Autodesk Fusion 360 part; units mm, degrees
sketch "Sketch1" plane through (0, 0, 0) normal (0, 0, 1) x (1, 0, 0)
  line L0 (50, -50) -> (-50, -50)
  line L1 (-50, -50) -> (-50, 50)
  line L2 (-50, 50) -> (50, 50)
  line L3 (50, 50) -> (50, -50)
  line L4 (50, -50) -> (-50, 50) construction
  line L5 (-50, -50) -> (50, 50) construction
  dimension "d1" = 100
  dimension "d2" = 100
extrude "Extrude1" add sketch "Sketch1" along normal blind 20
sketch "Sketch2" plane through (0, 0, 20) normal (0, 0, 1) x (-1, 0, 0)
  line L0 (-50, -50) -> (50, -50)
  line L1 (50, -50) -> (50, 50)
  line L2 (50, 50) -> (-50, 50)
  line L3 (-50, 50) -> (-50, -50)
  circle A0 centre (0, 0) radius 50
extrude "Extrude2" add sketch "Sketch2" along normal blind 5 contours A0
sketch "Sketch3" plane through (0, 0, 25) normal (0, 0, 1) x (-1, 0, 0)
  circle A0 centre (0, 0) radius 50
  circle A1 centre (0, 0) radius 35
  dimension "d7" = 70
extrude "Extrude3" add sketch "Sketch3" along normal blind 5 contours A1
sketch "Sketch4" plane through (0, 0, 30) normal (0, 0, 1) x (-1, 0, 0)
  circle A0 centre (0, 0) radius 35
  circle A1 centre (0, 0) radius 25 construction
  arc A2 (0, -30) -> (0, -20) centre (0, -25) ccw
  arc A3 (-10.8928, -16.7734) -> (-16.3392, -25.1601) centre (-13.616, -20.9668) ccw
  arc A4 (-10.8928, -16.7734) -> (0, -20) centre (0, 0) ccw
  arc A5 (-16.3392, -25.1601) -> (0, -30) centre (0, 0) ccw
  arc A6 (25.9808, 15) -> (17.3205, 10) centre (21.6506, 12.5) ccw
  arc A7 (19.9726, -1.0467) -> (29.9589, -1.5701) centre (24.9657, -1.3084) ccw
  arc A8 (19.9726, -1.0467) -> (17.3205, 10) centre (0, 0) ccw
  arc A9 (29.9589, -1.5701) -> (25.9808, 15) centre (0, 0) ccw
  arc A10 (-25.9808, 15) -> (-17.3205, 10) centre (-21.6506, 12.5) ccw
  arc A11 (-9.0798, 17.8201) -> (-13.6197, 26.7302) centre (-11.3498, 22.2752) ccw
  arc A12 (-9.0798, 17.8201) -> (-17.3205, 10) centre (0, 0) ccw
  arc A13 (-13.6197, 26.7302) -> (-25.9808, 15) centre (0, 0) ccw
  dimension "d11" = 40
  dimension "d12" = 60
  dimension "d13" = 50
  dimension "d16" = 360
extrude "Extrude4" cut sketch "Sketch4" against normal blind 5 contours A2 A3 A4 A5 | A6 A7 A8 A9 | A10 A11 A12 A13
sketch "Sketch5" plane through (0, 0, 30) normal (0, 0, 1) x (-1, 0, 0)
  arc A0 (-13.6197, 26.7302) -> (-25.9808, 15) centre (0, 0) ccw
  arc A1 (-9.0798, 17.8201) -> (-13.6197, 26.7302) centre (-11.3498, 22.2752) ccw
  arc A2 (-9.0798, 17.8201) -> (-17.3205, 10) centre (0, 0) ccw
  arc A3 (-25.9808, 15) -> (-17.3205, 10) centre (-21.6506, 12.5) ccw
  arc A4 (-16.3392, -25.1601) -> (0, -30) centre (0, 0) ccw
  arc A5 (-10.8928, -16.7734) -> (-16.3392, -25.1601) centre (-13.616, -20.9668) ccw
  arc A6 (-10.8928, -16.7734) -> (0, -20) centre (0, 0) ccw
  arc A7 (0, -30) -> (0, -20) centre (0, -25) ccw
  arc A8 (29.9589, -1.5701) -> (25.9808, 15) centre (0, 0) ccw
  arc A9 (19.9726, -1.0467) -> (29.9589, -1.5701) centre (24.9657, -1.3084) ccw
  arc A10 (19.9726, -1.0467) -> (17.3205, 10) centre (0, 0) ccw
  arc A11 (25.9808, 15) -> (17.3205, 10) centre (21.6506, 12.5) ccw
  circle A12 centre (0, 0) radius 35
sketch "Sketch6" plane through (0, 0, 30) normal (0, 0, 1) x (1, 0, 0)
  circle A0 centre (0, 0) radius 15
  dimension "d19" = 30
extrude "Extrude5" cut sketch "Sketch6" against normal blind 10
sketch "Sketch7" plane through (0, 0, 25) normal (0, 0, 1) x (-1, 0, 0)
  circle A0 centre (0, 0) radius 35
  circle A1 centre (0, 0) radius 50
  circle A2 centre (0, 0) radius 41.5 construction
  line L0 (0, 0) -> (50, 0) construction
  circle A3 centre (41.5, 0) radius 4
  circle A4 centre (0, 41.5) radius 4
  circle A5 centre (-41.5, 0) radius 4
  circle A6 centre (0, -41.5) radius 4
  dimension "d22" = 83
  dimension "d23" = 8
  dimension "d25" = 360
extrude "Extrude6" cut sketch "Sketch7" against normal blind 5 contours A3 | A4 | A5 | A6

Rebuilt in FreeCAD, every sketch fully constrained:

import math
import FreeCAD as App
import Part
import Sketcher

V = App.Vector
Q = App.Units.Quantity

doc = App.newDocument("Part")
body = doc.addObject("PartDesign::Body", "Body")

# Sketch on XY plane
sketch1 = doc.addObject("Sketcher::SketchObject", "Sketch")
body.addObject(sketch1)
sketch1.AttachmentSupport = (doc.XY_Plane, [""])
sketch1.MapMode = "FlatFace"
sketch1.addGeometry(Part.LineSegment(V(-50, -50, 0), V(50, -50, 0)), False)
sketch1.addGeometry(Part.LineSegment(V(50, -50, 0), V(50, 50, 0)), False)
sketch1.addGeometry(Part.LineSegment(V(50, 50, 0), V(-50, 50, 0)), False)
sketch1.addGeometry(Part.LineSegment(V(-50, 50, 0), V(-50, -50, 0)), False)
sketch1.addConstraint(Sketcher.Constraint("Coincident", 0, 2, 1, 1))
sketch1.addConstraint(Sketcher.Constraint("Coincident", 1, 2, 2, 1))
sketch1.addConstraint(Sketcher.Constraint("Coincident", 2, 2, 3, 1))
sketch1.addConstraint(Sketcher.Constraint("Coincident", 3, 2, 0, 1))
sketch1.addConstraint(Sketcher.Constraint("Horizontal", 0))
sketch1.addConstraint(Sketcher.Constraint("Vertical", 1))
sketch1.addConstraint(Sketcher.Constraint("Horizontal", 2))
sketch1.addConstraint(Sketcher.Constraint("Vertical", 3))
sketch1.addConstraint(Sketcher.Constraint("Symmetric", 0, 2, 2, 2, -1, 1))
sketch1.addConstraint(Sketcher.Constraint("Equal", 2, 1))
sketch1.addConstraint(Sketcher.Constraint("DistanceX", 0, 1, 0, 2, Q("100 mm")))
pad1 = doc.addObject("PartDesign::Pad", "Pad")
body.addObject(pad1)
pad1.Profile = sketch1
pad1.Length = 20

# Sketch on XY plane
sketch2 = doc.addObject("Sketcher::SketchObject", "Sketch001")
body.addObject(sketch2)
sketch2.AttachmentSupport = (doc.XY_Plane, [""])
sketch2.MapMode = "FlatFace"
sketch2.AttachmentOffset = App.Placement(V(0, 0, 20), App.Rotation())
sketch2.addGeometry(Part.Circle(V(0, 0, 0), V(0, 0, 1), 50), False)
sketch2.addConstraint(Sketcher.Constraint("Coincident", 0, 3, -1, 1))
sketch2.addConstraint(Sketcher.Constraint("Diameter", 0, Q("100 mm")))
pad2 = doc.addObject("PartDesign::Pad", "Pad001")
body.addObject(pad2)
pad2.Profile = sketch2
pad2.Length = 5

# Sketch on XY plane
sketch3 = doc.addObject("Sketcher::SketchObject", "Sketch002")
body.addObject(sketch3)
sketch3.AttachmentSupport = (doc.XY_Plane, [""])
sketch3.MapMode = "FlatFace"
sketch3.AttachmentOffset = App.Placement(V(0, 0, 25), App.Rotation())
sketch3.addGeometry(Part.Circle(V(0, 0, 0), V(0, 0, 1), 35), False)
sketch3.addConstraint(Sketcher.Constraint("Coincident", 0, 3, -1, 1))
sketch3.addConstraint(Sketcher.Constraint("Diameter", 0, Q("70 mm")))
pad3 = doc.addObject("PartDesign::Pad", "Pad002")
body.addObject(pad3)
pad3.Profile = sketch3
pad3.Length = 5

# Sketch on XY plane
sketch4 = doc.addObject("Sketcher::SketchObject", "Sketch003")
body.addObject(sketch4)
sketch4.AttachmentSupport = (doc.XY_Plane, [""])
sketch4.MapMode = "FlatFace"
sketch4.AttachmentOffset = App.Placement(V(0, 0, 30), App.Rotation())
sketch4.addGeometry(Part.ArcOfCircle(Part.Circle(V(0, 0, 0), V(0, 0, 1), 29.999997), math.radians(56.999936), math.radians(90)), False)
sketch4.addGeometry(Part.ArcOfCircle(Part.Circle(V(0, 25, 0), V(0, 0, 1), 5), math.radians(90), math.radians(270)), False)
sketch4.addGeometry(Part.ArcOfCircle(Part.Circle(V(0, 0, 0), V(0, 0, 1), 20.000001), math.radians(56.999936), math.radians(90)), False)
sketch4.addGeometry(Part.ArcOfCircle(Part.Circle(V(13.616, 20.9668, 0), V(0, 0, 1), 5.000042), math.radians(-122.999752), math.radians(56.999624)), False)
sketch4.addGeometry(Part.ArcOfCircle(Part.Circle(V(0, 0, 0), V(0, 0, 1), 30.000015), math.radians(176.999961), math.radians(209.999964)), False)
sketch4.addGeometry(Part.ArcOfCircle(Part.Circle(V(-21.6506, -12.5, 0), V(0, 0, 1), 5.000063), math.radians(-150.000418), math.radians(30.000155)), False)
sketch4.addGeometry(Part.ArcOfCircle(Part.Circle(V(0, 0, 0), V(0, 0, 1), 19.999968), math.radians(177.000056), math.radians(210.000012)), False)
sketch4.addGeometry(Part.ArcOfCircle(Part.Circle(V(-24.9657, 1.3084, 0), V(0, 0, 1), 4.999953), math.radians(-3.00026), math.radians(176.9998)), False)
sketch4.addGeometry(Part.ArcOfCircle(Part.Circle(V(0, 0, 0), V(0, 0, 1), 30.000015), math.radians(-63.000029), math.radians(-29.999964)), False)
sketch4.addGeometry(Part.ArcOfCircle(Part.Circle(V(21.6506, -12.5, 0), V(0, 0, 1), 5.000063), math.radians(-29.999582), math.radians(149.999845)), False)
sketch4.addGeometry(Part.ArcOfCircle(Part.Circle(V(0, 0, 0), V(0, 0, 1), 20.000008), math.radians(-62.999986), math.radians(-30.000012)), False)
sketch4.addGeometry(Part.ArcOfCircle(Part.Circle(V(11.3498, -22.2752, 0), V(0, 0, 1), 5.000082), math.radians(117.000134), math.radians(296.999634)), False)
sketch4.addConstraint(Sketcher.Constraint("Tangent", 0, 2, 1, 1))
sketch4.addConstraint(Sketcher.Constraint("Tangent", 1, 2, 2, 2))
sketch4.addConstraint(Sketcher.Constraint("Tangent", 2, 1, 3, 1))
sketch4.addConstraint(Sketcher.Constraint("Tangent", 3, 2, 0, 1))
sketch4.addConstraint(Sketcher.Constraint("Tangent", 4, 2, 5, 1))
sketch4.addConstraint(Sketcher.Constraint("Tangent", 5, 2, 6, 2))
sketch4.addConstraint(Sketcher.Constraint("Tangent", 6, 1, 7, 1))
sketch4.addConstraint(Sketcher.Constraint("Tangent", 7, 2, 4, 1))
sketch4.addConstraint(Sketcher.Constraint("Tangent", 8, 2, 9, 1))
sketch4.addConstraint(Sketcher.Constraint("Tangent", 9, 2, 10, 2))
sketch4.addConstraint(Sketcher.Constraint("Tangent", 10, 1, 11, 1))
sketch4.addConstraint(Sketcher.Constraint("Tangent", 11, 2, 8, 1))
sketch4.addConstraint(Sketcher.Constraint("Coincident", 0, 3, -1, 1))
sketch4.addConstraint(Sketcher.Constraint("Coincident", 2, 3, -1, 1))
sketch4.addConstraint(Sketcher.Constraint("Coincident", 4, 3, -1, 1))
sketch4.addConstraint(Sketcher.Constraint("Coincident", 6, 3, -1, 1))
sketch4.addConstraint(Sketcher.Constraint("Coincident", 8, 3, -1, 1))
sketch4.addConstraint(Sketcher.Constraint("Coincident", 10, 3, -1, 1))
sketch4.addConstraint(Sketcher.Constraint("Equal", 0, 4))
sketch4.addConstraint(Sketcher.Constraint("Equal", 3, 5))
sketch4.addConstraint(Sketcher.Constraint("Equal", 4, 8))
sketch4.addConstraint(Sketcher.Constraint("Equal", 7, 9))
sketch4.addConstraint(Sketcher.Constraint("PointOnObject", 1, 3, -2))
sketch4.addConstraint(Sketcher.Constraint("Horizontal", 5, 3, 9, 3))
sketch4.addConstraint(Sketcher.Constraint("Radius", 0, Q("30 mm")))
sketch4.addConstraint(Sketcher.Constraint("Radius", 2, Q("20 mm")))
sketch4.addConstraint(Sketcher.Constraint("DistanceY", 4, 2, -1, 1, Q("15 mm")))
sketch4.addConstraint(Sketcher.Constraint("DistanceY", -1, 1, 7, 2, Q("1.57 mm")))
sketch4.addConstraint(Sketcher.Constraint("DistanceX", 10, 1, 11, 3, Q("2.27 mm")))
sketch4.addConstraint(Sketcher.Constraint("DistanceX", -1, 1, 3, 3, Q("13.616 mm")))
pocket1 = doc.addObject("PartDesign::Pocket", "Pocket")
body.addObject(pocket1)
pocket1.Profile = sketch4
pocket1.Length = 5

# Sketch on XY plane
sketch5 = doc.addObject("Sketcher::SketchObject", "Sketch004")
body.addObject(sketch5)
sketch5.AttachmentSupport = (doc.XY_Plane, [""])
sketch5.MapMode = "FlatFace"
sketch5.AttachmentOffset = App.Placement(V(0, 0, 30), App.Rotation())
sketch5.addGeometry(Part.Circle(V(0, 0, 0), V(0, 0, 1), 15), False)
sketch5.addConstraint(Sketcher.Constraint("Coincident", 0, 3, -1, 1))
sketch5.addConstraint(Sketcher.Constraint("Diameter", 0, Q("30 mm")))
pocket2 = doc.addObject("PartDesign::Pocket", "Pocket001")
body.addObject(pocket2)
pocket2.Profile = sketch5
pocket2.Length = 10

# Sketch on XY plane
sketch6 = doc.addObject("Sketcher::SketchObject", "Sketch005")
body.addObject(sketch6)
sketch6.AttachmentSupport = (doc.XY_Plane, [""])
sketch6.MapMode = "FlatFace"
sketch6.AttachmentOffset = App.Placement(V(0, 0, 25), App.Rotation())
sketch6.addGeometry(Part.Circle(V(-41.5, 0, 0), V(0, 0, 1), 4), False)
sketch6.addGeometry(Part.Circle(V(0, -41.5, 0), V(0, 0, 1), 4), False)
sketch6.addGeometry(Part.Circle(V(41.5, 0, 0), V(0, 0, 1), 4), False)
sketch6.addGeometry(Part.Circle(V(0, 41.5, 0), V(0, 0, 1), 4), False)
sketch6.addConstraint(Sketcher.Constraint("Equal", 0, 1))
sketch6.addConstraint(Sketcher.Constraint("Equal", 1, 2))
sketch6.addConstraint(Sketcher.Constraint("Equal", 2, 3))
sketch6.addConstraint(Sketcher.Constraint("Symmetric", 0, 3, 2, 3, -1, 1))
sketch6.addConstraint(Sketcher.Constraint("Symmetric", 1, 3, 3, 3, -1, 1))
sketch6.addConstraint(Sketcher.Constraint("PointOnObject", 0, 3, -1))
sketch6.addConstraint(Sketcher.Constraint("PointOnObject", 1, 3, -2))
sketch6.addConstraint(Sketcher.Constraint("Diameter", 0, Q("8 mm")))
sketch6.addConstraint(Sketcher.Constraint("DistanceX", 0, 3, 2, 3, Q("83 mm")))
sketch6.addConstraint(Sketcher.Constraint("DistanceY", 1, 3, 3, 3, Q("83 mm")))
pocket3 = doc.addObject("PartDesign::Pocket", "Pocket002")
body.addObject(pocket3)
pocket3.Profile = sketch6
pocket3.Length = 5

doc.recompute()
